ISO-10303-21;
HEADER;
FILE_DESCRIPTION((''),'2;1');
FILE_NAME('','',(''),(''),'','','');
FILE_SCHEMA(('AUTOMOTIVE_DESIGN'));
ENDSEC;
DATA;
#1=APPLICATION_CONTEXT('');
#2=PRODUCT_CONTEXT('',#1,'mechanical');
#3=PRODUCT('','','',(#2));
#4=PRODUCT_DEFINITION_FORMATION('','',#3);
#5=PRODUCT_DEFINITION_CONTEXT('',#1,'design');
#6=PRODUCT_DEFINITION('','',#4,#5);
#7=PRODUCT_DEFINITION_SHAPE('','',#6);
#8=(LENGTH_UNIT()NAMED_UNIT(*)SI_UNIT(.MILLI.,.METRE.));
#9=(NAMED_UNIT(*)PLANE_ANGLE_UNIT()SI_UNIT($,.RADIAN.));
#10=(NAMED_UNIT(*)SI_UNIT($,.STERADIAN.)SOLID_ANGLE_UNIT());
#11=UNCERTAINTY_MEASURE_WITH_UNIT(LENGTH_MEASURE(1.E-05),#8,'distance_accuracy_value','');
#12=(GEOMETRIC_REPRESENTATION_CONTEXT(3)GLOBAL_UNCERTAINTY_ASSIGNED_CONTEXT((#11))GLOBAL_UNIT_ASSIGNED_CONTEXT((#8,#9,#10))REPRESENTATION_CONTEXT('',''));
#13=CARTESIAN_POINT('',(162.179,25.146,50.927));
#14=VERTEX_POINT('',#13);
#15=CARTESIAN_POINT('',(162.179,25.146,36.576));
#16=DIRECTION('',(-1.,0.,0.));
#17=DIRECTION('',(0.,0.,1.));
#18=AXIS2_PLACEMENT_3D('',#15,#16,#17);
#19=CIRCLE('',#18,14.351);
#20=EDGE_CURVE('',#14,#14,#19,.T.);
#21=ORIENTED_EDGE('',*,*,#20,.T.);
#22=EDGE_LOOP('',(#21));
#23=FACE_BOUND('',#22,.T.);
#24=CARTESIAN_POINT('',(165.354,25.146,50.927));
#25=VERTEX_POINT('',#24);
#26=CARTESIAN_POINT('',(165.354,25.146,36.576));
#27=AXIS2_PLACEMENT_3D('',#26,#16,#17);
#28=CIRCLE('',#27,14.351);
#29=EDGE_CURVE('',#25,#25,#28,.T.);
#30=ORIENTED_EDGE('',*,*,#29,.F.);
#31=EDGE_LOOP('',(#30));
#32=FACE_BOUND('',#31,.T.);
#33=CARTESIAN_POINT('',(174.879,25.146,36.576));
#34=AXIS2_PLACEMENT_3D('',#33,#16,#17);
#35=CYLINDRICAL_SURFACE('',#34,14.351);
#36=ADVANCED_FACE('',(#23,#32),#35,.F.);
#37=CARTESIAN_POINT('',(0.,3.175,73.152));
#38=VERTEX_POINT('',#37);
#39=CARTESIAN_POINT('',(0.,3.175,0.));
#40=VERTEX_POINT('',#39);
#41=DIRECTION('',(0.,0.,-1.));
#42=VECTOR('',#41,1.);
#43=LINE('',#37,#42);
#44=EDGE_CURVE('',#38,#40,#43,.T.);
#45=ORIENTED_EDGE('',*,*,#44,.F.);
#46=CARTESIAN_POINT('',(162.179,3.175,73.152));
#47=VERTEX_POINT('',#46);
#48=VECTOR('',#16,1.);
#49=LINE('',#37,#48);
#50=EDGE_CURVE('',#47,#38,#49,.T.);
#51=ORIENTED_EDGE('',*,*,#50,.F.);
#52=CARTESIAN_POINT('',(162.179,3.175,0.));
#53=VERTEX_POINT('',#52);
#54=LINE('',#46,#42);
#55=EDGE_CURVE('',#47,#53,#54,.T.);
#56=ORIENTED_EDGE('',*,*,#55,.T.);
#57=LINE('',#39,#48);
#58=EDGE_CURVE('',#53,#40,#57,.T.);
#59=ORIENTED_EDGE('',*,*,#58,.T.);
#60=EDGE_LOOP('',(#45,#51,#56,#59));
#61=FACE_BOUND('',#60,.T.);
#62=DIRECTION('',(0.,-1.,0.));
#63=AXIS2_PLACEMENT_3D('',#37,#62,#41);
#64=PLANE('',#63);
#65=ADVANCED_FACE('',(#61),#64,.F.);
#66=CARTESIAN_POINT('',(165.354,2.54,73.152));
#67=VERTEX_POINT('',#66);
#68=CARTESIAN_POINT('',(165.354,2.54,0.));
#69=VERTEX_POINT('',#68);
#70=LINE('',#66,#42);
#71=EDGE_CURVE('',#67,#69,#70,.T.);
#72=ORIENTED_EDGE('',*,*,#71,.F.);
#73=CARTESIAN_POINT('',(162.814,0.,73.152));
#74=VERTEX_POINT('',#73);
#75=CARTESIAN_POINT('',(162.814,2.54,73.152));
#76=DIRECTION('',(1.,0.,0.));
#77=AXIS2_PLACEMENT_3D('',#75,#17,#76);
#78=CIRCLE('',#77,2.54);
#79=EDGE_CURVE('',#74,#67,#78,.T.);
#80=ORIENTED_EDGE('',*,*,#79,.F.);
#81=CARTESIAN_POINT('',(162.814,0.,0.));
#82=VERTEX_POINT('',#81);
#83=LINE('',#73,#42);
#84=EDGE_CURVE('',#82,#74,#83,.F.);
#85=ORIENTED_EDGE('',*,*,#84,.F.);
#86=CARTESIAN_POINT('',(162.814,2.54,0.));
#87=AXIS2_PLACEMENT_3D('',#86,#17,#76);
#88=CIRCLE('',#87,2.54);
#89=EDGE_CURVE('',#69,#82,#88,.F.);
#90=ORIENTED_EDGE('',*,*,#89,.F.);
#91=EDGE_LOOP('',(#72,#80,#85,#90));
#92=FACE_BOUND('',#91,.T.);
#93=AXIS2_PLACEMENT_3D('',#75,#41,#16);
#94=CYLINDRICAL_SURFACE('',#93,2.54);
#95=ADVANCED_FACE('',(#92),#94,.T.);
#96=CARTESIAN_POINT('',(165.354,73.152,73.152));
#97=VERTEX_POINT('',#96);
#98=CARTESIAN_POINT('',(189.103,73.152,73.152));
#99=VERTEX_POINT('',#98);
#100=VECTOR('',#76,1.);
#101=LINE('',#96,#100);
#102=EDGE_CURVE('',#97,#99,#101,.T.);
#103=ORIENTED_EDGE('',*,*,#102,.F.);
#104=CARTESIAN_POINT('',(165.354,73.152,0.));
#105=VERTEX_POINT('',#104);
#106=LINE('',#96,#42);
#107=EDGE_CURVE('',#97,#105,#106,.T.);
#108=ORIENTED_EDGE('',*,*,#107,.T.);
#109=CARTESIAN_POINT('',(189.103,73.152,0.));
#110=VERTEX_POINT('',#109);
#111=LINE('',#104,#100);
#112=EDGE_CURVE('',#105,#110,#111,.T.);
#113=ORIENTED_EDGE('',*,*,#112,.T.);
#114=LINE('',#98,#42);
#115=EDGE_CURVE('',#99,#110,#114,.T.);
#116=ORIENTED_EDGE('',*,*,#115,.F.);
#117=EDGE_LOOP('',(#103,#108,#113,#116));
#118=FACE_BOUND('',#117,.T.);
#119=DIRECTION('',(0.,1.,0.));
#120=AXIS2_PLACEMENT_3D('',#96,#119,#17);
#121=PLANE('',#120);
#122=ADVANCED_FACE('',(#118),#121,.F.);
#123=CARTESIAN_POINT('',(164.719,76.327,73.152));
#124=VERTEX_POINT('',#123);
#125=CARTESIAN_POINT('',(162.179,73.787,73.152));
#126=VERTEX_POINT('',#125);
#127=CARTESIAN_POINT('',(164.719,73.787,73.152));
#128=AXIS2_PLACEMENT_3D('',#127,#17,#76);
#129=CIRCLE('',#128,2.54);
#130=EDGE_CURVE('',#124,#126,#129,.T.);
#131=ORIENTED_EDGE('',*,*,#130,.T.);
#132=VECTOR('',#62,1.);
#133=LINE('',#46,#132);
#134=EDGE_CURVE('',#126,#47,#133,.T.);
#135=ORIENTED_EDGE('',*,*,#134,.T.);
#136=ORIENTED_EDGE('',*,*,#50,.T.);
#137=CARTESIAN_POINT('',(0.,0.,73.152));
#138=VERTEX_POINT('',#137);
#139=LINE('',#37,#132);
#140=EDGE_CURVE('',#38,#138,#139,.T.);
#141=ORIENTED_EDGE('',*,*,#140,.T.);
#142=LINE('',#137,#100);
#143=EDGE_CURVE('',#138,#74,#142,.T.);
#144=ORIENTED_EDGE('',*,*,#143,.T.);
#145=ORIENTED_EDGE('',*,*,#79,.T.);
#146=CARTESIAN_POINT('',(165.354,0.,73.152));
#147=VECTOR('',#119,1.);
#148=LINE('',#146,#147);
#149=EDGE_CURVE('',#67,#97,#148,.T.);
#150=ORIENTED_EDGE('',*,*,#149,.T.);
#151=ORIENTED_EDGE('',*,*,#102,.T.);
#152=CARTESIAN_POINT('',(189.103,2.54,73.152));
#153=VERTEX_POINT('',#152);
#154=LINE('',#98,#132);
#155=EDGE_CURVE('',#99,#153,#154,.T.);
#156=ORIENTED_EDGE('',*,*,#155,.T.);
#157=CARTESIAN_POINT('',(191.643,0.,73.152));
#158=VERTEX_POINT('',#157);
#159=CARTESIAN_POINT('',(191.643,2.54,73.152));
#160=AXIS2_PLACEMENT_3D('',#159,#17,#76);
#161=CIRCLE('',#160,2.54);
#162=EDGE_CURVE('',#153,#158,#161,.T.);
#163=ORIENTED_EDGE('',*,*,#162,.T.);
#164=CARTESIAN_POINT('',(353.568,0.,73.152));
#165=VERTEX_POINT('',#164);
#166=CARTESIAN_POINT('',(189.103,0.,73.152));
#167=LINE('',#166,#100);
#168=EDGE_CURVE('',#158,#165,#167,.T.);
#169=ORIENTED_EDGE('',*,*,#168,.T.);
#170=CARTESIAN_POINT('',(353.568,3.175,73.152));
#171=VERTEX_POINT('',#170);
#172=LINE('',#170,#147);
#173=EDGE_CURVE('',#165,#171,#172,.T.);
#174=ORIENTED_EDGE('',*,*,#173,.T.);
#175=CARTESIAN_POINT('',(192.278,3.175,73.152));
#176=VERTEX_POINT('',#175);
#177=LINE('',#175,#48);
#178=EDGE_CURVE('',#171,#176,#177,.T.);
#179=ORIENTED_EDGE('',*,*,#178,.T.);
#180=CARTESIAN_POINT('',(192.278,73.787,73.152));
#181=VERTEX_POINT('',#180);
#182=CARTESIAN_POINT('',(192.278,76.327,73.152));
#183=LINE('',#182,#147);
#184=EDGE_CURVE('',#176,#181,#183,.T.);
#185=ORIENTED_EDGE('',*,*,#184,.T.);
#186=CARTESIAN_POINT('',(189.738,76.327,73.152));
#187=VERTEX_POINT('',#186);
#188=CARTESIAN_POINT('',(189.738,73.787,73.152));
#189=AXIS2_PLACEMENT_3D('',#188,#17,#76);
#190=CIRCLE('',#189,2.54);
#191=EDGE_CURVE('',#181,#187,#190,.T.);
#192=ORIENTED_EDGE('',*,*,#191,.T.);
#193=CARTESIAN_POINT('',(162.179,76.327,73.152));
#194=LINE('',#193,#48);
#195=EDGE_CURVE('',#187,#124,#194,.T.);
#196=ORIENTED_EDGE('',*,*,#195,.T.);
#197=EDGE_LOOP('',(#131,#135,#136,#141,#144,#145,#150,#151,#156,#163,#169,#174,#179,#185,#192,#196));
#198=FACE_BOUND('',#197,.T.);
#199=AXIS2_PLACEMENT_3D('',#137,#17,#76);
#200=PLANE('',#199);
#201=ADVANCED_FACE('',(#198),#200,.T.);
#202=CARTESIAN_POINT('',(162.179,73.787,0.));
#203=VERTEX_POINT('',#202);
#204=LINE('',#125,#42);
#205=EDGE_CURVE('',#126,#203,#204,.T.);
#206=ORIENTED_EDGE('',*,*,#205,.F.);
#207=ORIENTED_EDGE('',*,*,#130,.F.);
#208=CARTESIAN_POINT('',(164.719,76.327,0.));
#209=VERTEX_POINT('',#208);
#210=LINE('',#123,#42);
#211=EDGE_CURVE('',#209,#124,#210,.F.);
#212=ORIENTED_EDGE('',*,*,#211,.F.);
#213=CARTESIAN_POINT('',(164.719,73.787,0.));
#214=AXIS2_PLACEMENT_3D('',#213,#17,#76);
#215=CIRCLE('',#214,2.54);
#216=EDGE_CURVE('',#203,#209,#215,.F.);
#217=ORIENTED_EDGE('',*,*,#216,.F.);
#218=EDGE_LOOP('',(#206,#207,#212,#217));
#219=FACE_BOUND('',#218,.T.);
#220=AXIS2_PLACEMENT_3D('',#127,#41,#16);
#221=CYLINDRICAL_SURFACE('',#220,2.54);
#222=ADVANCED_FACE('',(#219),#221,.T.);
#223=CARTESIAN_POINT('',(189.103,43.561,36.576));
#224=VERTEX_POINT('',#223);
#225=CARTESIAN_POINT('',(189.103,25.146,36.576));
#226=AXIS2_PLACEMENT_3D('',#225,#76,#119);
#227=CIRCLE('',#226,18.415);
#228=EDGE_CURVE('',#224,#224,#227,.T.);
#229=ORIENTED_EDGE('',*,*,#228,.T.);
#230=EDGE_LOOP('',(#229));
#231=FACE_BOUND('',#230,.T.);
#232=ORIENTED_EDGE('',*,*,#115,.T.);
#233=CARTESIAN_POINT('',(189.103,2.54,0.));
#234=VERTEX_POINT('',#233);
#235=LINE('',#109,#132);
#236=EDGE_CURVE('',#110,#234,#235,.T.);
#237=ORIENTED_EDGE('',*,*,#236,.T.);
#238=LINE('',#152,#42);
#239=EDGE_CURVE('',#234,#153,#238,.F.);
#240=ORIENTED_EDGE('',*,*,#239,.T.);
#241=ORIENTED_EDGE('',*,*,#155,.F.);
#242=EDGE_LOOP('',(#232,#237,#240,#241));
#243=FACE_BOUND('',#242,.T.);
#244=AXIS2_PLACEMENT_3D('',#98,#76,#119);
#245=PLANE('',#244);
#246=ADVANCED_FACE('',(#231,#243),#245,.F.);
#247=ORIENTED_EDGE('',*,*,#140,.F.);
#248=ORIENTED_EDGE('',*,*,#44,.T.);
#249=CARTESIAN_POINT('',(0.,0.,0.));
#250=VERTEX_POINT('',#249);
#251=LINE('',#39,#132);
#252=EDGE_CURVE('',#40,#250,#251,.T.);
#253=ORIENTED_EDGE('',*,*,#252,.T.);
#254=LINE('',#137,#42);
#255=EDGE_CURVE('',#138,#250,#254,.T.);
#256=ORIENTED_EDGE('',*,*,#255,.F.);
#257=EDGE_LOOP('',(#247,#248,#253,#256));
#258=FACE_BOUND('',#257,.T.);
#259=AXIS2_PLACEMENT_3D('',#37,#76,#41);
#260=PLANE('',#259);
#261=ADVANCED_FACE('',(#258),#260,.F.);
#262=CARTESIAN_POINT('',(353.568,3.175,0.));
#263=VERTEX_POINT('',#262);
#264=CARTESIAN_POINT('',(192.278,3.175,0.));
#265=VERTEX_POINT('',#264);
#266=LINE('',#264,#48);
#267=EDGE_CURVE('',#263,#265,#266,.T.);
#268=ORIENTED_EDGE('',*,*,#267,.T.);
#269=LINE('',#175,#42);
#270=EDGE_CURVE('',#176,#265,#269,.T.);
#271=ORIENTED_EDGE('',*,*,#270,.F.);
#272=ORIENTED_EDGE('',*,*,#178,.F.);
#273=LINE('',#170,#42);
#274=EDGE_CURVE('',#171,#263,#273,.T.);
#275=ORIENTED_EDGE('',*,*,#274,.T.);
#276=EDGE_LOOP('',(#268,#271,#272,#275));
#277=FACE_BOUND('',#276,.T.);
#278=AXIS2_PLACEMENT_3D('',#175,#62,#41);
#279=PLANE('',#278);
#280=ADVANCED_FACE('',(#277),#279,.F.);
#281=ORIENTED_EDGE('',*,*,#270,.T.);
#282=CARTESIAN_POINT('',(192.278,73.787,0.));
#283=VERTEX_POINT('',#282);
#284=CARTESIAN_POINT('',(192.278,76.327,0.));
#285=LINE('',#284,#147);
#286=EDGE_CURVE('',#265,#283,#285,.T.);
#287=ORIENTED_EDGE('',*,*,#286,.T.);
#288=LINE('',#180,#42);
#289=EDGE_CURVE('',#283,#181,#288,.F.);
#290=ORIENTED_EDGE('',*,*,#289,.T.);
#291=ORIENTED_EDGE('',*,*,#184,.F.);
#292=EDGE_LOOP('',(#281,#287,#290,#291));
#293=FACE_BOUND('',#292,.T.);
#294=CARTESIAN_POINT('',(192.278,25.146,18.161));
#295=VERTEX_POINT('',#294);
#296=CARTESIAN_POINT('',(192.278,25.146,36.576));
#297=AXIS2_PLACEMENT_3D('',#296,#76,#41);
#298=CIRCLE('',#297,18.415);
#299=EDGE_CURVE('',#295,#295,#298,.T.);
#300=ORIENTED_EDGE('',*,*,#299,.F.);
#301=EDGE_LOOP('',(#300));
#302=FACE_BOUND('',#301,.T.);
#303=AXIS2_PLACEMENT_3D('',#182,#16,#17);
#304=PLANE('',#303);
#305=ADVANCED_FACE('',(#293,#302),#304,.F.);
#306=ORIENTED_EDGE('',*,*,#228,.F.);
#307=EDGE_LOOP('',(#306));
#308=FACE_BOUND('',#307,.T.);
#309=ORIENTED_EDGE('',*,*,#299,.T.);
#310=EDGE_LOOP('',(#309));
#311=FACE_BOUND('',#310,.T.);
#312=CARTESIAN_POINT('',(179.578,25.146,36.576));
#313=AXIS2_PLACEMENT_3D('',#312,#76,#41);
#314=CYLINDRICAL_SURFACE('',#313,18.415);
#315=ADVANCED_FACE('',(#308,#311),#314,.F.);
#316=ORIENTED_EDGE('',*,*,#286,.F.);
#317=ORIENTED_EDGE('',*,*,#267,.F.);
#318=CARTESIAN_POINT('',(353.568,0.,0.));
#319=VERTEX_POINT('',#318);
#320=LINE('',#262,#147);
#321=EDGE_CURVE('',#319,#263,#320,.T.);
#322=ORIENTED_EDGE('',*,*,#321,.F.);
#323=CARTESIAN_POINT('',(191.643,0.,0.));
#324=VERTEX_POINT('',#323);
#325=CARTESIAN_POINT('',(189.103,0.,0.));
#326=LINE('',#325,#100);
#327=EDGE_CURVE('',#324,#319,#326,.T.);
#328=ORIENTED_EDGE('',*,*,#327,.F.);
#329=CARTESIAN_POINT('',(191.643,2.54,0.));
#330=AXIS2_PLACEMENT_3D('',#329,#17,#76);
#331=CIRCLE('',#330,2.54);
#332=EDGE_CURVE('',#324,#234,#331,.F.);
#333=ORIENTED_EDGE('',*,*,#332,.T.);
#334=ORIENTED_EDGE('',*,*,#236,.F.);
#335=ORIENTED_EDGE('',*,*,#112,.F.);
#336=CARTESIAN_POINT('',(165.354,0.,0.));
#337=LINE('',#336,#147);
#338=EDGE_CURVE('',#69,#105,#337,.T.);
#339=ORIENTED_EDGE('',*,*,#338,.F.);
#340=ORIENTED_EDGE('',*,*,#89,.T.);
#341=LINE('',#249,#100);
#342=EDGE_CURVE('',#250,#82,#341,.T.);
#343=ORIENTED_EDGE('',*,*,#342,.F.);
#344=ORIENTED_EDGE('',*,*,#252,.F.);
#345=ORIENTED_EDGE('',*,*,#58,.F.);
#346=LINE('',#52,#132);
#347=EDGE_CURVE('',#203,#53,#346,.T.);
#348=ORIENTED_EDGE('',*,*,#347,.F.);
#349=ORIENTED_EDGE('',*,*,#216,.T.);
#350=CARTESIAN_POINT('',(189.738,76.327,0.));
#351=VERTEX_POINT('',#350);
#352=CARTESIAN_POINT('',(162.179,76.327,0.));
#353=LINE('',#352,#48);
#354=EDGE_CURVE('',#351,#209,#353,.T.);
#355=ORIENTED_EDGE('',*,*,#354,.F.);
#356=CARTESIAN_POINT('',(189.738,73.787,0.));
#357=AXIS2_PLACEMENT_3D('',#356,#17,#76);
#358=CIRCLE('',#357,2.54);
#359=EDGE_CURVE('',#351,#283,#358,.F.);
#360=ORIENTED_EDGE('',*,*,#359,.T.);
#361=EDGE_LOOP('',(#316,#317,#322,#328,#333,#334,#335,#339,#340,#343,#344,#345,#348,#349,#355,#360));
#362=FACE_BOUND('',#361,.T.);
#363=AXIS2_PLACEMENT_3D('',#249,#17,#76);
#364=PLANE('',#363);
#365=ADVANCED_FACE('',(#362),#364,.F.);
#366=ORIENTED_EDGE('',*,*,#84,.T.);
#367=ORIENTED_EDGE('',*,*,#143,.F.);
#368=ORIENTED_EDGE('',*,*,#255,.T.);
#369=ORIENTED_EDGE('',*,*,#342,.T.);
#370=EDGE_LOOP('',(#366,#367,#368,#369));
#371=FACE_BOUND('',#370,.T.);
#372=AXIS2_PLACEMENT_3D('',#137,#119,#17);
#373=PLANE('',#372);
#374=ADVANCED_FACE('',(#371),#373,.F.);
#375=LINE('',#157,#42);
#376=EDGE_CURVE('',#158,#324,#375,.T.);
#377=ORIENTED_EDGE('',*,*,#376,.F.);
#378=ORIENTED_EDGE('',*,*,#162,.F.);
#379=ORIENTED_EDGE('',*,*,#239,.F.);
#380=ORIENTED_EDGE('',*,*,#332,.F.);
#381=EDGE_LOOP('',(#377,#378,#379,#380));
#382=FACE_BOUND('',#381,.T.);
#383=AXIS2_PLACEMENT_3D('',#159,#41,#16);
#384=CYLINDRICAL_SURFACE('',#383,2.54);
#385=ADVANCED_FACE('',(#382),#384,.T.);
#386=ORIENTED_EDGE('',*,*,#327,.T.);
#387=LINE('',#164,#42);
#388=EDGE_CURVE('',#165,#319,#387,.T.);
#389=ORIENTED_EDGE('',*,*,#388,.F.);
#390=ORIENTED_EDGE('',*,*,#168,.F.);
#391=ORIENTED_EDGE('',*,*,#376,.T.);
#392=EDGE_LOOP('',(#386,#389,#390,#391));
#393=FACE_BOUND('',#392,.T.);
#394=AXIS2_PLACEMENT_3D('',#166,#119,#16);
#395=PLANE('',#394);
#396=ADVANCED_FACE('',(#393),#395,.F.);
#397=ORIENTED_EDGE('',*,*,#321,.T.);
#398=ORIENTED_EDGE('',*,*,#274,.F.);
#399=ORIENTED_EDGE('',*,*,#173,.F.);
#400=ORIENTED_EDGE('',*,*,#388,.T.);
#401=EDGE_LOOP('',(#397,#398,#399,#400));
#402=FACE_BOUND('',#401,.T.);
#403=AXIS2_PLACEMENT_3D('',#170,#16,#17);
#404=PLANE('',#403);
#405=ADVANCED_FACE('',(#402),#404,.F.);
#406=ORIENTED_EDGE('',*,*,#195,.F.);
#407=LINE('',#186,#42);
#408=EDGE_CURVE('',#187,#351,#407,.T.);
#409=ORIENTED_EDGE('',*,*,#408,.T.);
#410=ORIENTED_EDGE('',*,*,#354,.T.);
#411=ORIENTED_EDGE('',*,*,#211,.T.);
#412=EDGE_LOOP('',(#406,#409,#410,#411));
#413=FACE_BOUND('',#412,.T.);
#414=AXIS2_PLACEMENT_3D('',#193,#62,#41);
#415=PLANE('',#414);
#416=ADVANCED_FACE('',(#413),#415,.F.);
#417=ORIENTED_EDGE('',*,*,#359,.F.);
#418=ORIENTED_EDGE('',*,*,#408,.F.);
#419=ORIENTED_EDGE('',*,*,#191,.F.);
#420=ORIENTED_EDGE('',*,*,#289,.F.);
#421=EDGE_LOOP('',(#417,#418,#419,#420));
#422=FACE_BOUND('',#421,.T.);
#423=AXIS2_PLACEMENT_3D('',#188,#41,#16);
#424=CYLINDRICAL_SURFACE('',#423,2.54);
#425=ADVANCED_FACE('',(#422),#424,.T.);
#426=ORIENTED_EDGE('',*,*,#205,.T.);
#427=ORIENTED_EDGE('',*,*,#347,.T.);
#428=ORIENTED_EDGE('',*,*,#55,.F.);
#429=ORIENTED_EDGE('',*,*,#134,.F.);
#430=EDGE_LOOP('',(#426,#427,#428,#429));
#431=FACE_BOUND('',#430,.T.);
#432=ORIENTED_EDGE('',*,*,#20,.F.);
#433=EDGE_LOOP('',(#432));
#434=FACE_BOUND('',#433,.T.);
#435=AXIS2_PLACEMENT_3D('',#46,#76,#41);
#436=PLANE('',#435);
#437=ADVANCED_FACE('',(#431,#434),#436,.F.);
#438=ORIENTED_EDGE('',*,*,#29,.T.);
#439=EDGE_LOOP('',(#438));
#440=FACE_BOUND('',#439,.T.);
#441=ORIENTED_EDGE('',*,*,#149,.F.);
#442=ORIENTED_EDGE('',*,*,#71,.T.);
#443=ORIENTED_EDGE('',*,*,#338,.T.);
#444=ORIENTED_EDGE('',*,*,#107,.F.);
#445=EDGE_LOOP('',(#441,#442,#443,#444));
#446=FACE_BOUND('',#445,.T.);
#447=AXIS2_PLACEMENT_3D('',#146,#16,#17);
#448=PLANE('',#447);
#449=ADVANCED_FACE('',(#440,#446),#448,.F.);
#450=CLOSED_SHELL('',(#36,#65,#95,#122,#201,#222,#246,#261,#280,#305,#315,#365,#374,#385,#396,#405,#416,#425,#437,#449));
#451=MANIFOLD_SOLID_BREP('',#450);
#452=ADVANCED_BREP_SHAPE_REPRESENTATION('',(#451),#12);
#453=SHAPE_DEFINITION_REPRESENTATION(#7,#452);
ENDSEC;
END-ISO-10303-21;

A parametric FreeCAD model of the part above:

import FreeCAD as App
import Part
import Sketcher

V = App.Vector
Q = App.Units.Quantity


def edges_at(feature, points):
    """Names of the edges that pass closest to the given points."""
    edges = feature.Shape.Edges
    near = lambda p: min(range(len(edges)), key=lambda i: edges[i].distToShape(Part.Vertex(*p))[0])
    return sorted({f"Edge{near(p) + 1}" for p in points})

doc = App.newDocument("Part")
body = doc.addObject("PartDesign::Body", "Body")

sketch1 = doc.addObject("Sketcher::SketchObject", "Sketch")
body.addObject(sketch1)
sketch1.AttachmentSupport = (doc.XY_Plane, [""])
sketch1.MapMode = "FlatFace"
sketch1.addGeometry([
    Part.LineSegment(V(0, 0, 0), V(165.4, 0, 0)),
    Part.LineSegment(V(165.4, 0, 0), V(165.4, 73.2, 0)),
    Part.LineSegment(V(165.4, 73.2, 0), V(189.1, 73.2, 0)),
    Part.LineSegment(V(189.1, 73.2, 0), V(189.1, 0, 0)),
    Part.LineSegment(V(189.1, 0, 0), V(353.6, 0, 0)),
    Part.LineSegment(V(353.6, 0, 0), V(353.6, 3.2, 0)),
    Part.LineSegment(V(353.6, 3.2, 0), V(192.3, 3.2, 0)),
    Part.LineSegment(V(192.3, 3.2, 0), V(192.3, 76.3, 0)),
    Part.LineSegment(V(192.3, 76.3, 0), V(162.2, 76.3, 0)),
    Part.LineSegment(V(162.2, 76.3, 0), V(162.2, 3.2, 0)),
    Part.LineSegment(V(162.2, 3.2, 0), V(0, 3.2, 0)),
    Part.LineSegment(V(0, 3.2, 0), V(0, 0, 0)),
], False)
sketch1.addConstraint([
    Sketcher.Constraint("Coincident", 0, 2, 1, 1),
    Sketcher.Constraint("Coincident", 1, 2, 2, 1),
    Sketcher.Constraint("Coincident", 2, 2, 3, 1),
    Sketcher.Constraint("Coincident", 3, 2, 4, 1),
    Sketcher.Constraint("Coincident", 4, 2, 5, 1),
    Sketcher.Constraint("Coincident", 5, 2, 6, 1),
    Sketcher.Constraint("Coincident", 6, 2, 7, 1),
    Sketcher.Constraint("Coincident", 7, 2, 8, 1),
    Sketcher.Constraint("Coincident", 8, 2, 9, 1),
    Sketcher.Constraint("Coincident", 9, 2, 10, 1),
    Sketcher.Constraint("Coincident", 10, 2, 11, 1),
    Sketcher.Constraint("Coincident", 11, 2, 0, 1),
    Sketcher.Constraint("Horizontal", 0),
    Sketcher.Constraint("Vertical", 1),
    Sketcher.Constraint("Horizontal", 2),
    Sketcher.Constraint("Vertical", 3),
    Sketcher.Constraint("Horizontal", 4),
    Sketcher.Constraint("Vertical", 5),
    Sketcher.Constraint("Horizontal", 6),
    Sketcher.Constraint("Vertical", 7),
    Sketcher.Constraint("Horizontal", 8),
    Sketcher.Constraint("Vertical", 9),
    Sketcher.Constraint("Horizontal", 10),
    Sketcher.Constraint("Vertical", 11),
    Sketcher.Constraint("Coincident", 11, 2, -1, 1),
    Sketcher.Constraint("PointOnObject", 3, 2, -1),
    Sketcher.Constraint("Horizontal", 6, 2, 9, 2),
    Sketcher.Constraint("Equal", 3, 7),
    Sketcher.Constraint("DistanceX", 0, 1, 0, 2, Q("6.51 in")),
    Sketcher.Constraint("DistanceX", 6, 2, 6, 1, Q("6.35 in")),
    Sketcher.Constraint("DistanceY", 1, 1, 1, 2, Q("2.88 in")),
    Sketcher.Constraint("DistanceX", 2, 1, 2, 2, Q("0.935 in")),
    Sketcher.Constraint("DistanceX", 4, 1, 4, 2, Q("6.475 in")),
    Sketcher.Constraint("DistanceX", 8, 2, 8, 1, Q("1.185 in")),
    Sketcher.Constraint("DistanceY", 5, 1, 5, 2, Q("0.125 in")),
])
pad1 = doc.addObject("PartDesign::Pad", "Pad")
body.addObject(pad1)
pad1.Profile = sketch1
pad1.Length = Q("2.88 in")

sketch2 = doc.addObject("Sketcher::SketchObject", "Sketch001")
body.addObject(sketch2)
sketch2.AttachmentSupport = (doc.YZ_Plane, [""])
sketch2.MapMode = "FlatFace"
sketch2.AttachmentOffset = App.Placement(V(0, 0, 6.385 * 25.4), App.Rotation())
sketch2.addGeometry(Part.Circle(V(25, 37, 0), V(0, 0, 1), 14), False)
sketch2.addConstraint([
    Sketcher.Constraint("Diameter", 0, Q("1.13 in")),
    Sketcher.Constraint("DistanceX", -1, 1, 0, 3, Q("0.99 in")),
    Sketcher.Constraint("DistanceY", -1, 1, 0, 3, Q("1.44 in")),
])
pocket1 = doc.addObject("PartDesign::Pocket", "Pocket")
body.addObject(pocket1)
pocket1.Profile = sketch2
pocket1.Length = Q("0.5 in")
pocket1.Reversed = True

sketch3 = doc.addObject("Sketcher::SketchObject", "Sketch002")
body.addObject(sketch3)
sketch3.AttachmentSupport = (doc.YZ_Plane, [""])
sketch3.MapMode = "FlatFace"
sketch3.AttachmentOffset = App.Placement(V(0, 0, 7.57 * 25.4), App.Rotation())
sketch3.addGeometry(Part.Circle(V(25, 37, 0), V(0, 0, 1), 18), False)
sketch3.addConstraint([
    Sketcher.Constraint("Diameter", 0, Q("1.45 in")),
    Sketcher.Constraint("DistanceX", -1, 1, 0, 3, Q("0.99 in")),
    Sketcher.Constraint("DistanceY", -1, 1, 0, 3, Q("1.44 in")),
])
pocket2 = doc.addObject("PartDesign::Pocket", "Pocket001")
body.addObject(pocket2)
pocket2.Profile = sketch3
pocket2.Length = Q("0.5 in")
doc.recompute()

fillet = doc.addObject("PartDesign::Fillet", "Fillet")
body.addObject(fillet)
fillet.Base = (pocket2, edges_at(pocket2, [
    (162.179, 76.327, 36.576),
    (192.278, 76.327, 36.576),
    (189.103, 0, 36.576),
    (165.354, 0, 36.576),
]))
fillet.Radius = Q("0.1 in")

doc.recompute()
